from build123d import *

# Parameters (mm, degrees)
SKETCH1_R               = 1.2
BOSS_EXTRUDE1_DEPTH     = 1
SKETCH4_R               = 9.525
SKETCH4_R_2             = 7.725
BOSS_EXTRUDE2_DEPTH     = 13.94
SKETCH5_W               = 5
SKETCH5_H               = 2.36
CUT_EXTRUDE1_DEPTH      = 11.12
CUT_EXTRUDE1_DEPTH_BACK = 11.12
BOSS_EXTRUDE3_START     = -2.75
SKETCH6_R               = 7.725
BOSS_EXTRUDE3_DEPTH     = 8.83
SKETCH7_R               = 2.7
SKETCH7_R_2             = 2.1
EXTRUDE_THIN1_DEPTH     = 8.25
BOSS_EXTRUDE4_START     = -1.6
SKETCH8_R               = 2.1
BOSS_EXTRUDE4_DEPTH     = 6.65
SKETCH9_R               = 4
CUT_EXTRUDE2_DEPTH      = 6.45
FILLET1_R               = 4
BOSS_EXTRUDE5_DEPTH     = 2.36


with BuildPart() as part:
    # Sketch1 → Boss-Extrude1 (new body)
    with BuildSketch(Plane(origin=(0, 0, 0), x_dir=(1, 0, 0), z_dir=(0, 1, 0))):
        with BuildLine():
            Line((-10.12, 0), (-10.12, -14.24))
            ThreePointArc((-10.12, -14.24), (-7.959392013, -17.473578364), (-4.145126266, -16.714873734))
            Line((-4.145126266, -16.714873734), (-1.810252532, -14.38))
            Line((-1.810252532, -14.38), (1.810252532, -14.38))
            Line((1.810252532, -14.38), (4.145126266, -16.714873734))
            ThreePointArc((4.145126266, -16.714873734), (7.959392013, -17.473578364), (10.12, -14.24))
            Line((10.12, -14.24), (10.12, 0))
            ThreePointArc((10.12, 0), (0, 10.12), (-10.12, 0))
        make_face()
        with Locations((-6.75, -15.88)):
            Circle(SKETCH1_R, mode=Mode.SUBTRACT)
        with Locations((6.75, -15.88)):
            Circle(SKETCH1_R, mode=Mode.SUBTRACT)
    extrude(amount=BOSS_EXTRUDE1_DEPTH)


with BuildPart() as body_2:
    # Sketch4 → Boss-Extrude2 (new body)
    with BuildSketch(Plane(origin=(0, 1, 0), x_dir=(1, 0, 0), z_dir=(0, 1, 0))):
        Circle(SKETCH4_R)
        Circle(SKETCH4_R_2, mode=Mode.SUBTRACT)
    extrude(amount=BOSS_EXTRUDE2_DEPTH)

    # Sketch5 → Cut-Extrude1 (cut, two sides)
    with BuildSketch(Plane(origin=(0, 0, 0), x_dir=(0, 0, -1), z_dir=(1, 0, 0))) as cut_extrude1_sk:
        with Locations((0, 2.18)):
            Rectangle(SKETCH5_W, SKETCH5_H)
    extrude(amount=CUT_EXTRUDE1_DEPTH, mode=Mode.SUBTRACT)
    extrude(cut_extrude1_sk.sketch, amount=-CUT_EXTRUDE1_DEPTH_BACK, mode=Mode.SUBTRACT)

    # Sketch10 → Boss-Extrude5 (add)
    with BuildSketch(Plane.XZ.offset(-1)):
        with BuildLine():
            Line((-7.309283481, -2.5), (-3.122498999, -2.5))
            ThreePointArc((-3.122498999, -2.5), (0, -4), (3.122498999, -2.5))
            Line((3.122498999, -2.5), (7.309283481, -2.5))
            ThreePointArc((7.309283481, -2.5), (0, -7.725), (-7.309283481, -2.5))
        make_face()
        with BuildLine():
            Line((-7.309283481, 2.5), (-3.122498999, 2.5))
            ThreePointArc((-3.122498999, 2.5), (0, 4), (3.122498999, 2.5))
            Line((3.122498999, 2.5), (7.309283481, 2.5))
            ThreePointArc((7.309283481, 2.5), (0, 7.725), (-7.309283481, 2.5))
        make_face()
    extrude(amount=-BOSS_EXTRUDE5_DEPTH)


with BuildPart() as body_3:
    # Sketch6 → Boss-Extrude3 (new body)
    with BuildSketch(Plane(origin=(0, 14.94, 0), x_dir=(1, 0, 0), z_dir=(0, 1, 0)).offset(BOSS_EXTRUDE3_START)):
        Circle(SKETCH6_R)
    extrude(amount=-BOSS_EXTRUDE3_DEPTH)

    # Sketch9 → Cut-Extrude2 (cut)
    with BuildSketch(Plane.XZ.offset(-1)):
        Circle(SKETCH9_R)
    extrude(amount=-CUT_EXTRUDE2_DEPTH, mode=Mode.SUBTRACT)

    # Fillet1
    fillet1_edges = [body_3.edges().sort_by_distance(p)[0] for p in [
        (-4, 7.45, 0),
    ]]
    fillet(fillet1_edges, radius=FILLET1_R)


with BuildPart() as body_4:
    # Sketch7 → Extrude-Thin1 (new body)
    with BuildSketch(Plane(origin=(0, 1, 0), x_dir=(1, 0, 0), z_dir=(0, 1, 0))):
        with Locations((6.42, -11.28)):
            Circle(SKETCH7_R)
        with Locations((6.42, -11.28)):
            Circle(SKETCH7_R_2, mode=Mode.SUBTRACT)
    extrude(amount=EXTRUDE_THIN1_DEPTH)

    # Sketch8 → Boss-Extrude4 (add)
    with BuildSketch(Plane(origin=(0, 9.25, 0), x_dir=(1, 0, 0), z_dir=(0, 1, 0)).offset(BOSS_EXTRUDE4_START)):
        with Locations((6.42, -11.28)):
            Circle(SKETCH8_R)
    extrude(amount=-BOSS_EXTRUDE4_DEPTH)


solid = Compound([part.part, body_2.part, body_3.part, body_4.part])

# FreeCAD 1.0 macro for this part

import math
import FreeCAD as App
import Part
import Sketcher


def edges_at(feature, points):
    """Names of the edges that pass closest to the given points."""
    edges = feature.Shape.Edges
    near = lambda p: min(range(len(edges)), key=lambda i: edges[i].distToShape(Part.Vertex(*p))[0])
    return sorted({f"Edge{near(p) + 1}" for p in points})

doc = App.newDocument("Part")
body = doc.addObject("PartDesign::Body", "Body")

# Sketch on XZ plane
sketch1 = body.newObject("Sketcher::SketchObject", "Sketch")
sketch1.AttachmentSupport = (doc.getObject("XZ_Plane"), [""])
sketch1.MapMode = "FlatFace"
sketch1.addGeometry([
    Part.LineSegment(App.Vector(-10.1, 0, 0), App.Vector(-10.1, 14.2, 0)),  # 0
    Part.ArcOfCircle(Part.Circle(App.Vector(-6.6, 14.2, 0), App.Vector(0, 0, 1), 3.5), math.radians(45), math.radians(180)),  # 1
    Part.LineSegment(App.Vector(-4.1, 16.7, 0), App.Vector(-1.8, 14.4, 0)),  # 2
    Part.LineSegment(App.Vector(-1.8, 14.4, 0), App.Vector(1.8, 14.4, 0)),  # 3
    Part.LineSegment(App.Vector(1.8, 14.4, 0), App.Vector(4.1, 16.7, 0)),  # 4
    Part.ArcOfCircle(Part.Circle(App.Vector(6.6, 14.2, 0), App.Vector(0, 0, 1), 3.5), math.radians(0), math.radians(135)),  # 5
    Part.LineSegment(App.Vector(10.1, 14.2, 0), App.Vector(10.1, 0, 0)),  # 6
    Part.ArcOfCircle(Part.Circle(App.Vector(0, 0, 0), App.Vector(0, 0, 1), 10.1), math.radians(180), math.radians(360)),  # 7
    Part.Circle(App.Vector(-6.8, 15.9, 0), App.Vector(0, 0, 1), 1.2),  # 8
    Part.Circle(App.Vector(6.8, 15.9, 0), App.Vector(0, 0, 1), 1.2),  # 9
], False)
sketch1.addConstraint([
    Sketcher.Constraint("Tangent", 0, 2, 1, 2),
    Sketcher.Constraint("Tangent", 1, 1, 2, 1),
    Sketcher.Constraint("Coincident", 2, 2, 3, 1),
    Sketcher.Constraint("Coincident", 3, 2, 4, 1),
    Sketcher.Constraint("Tangent", 4, 2, 5, 2),
    Sketcher.Constraint("Tangent", 5, 1, 6, 1),
    Sketcher.Constraint("Tangent", 6, 2, 7, 2),
    Sketcher.Constraint("Tangent", 7, 1, 0, 1),
    Sketcher.Constraint("Vertical", 0),
    Sketcher.Constraint("Horizontal", 3),
    Sketcher.Constraint("Vertical", 6),
    Sketcher.Constraint("Coincident", 7, 3, -1, 1),
    Sketcher.Constraint("Equal", 1, 5),
    Sketcher.Constraint("Equal", 8, 9),
    Sketcher.Constraint("Symmetric", 8, 3, 9, 3, -2),
    Sketcher.Constraint("Symmetric", 1, 1, 4, 2, -2),
    Sketcher.Constraint("Perpendicular", 2, 4),
    Sketcher.Constraint("Diameter", 8, 2.4),
    Sketcher.Constraint("Radius", 1, 3.5),
    Sketcher.Constraint("Radius", 7, 10.12),
    Sketcher.Constraint("DistanceY", 0, 1, 0, 2, 14.24),
    Sketcher.Constraint("DistanceX", 8, 3, 9, 3, 13.5),
    Sketcher.Constraint("DistanceY", 2, 2, 8, 3, 1.5),
    Sketcher.Constraint("DistanceY", -1, 1, 8, 3, 15.88),
])
pad1 = body.newObject("PartDesign::Pad", "Pad")
pad1.Profile = sketch1
pad1.Length = 1
pad1.Reversed = True
body2 = doc.addObject("PartDesign::Body", "Body001")

# Sketch on XZ plane
sketch2 = body2.newObject("Sketcher::SketchObject", "Sketch001")
sketch2.AttachmentSupport = (doc.getObject("XZ_Plane001"), [""])
sketch2.MapMode = "FlatFace"
sketch2.AttachmentOffset = App.Placement(App.Vector(0, 0, -1), App.Rotation())
sketch2.addGeometry([
    Part.Circle(App.Vector(0, 0, 0), App.Vector(0, 0, 1), 10),
    Part.Circle(App.Vector(0, 0, 0), App.Vector(0, 0, 1), 8),
], False)
sketch2.addConstraint([
    Sketcher.Constraint("Coincident", 0, 3, -1, 1),
    Sketcher.Constraint("Coincident", 1, 3, -1, 1),
    Sketcher.Constraint("Diameter", 0, 19.05),
    Sketcher.Constraint("Diameter", 1, 15.45),
])
pad2 = body2.newObject("PartDesign::Pad", "Pad001")
pad2.Profile = sketch2
pad2.Length = 13.94
pad2.Reversed = True

# Sketch on YZ plane
sketch3 = body2.newObject("Sketcher::SketchObject", "Sketch002")
sketch3.AttachmentSupport = (doc.getObject("YZ_Plane001"), [""])
sketch3.MapMode = "FlatFace"
sketch3.addGeometry([
    Part.LineSegment(App.Vector(3.4, 2.5, 0), App.Vector(1, 2.5, 0)),
    Part.LineSegment(App.Vector(1, 2.5, 0), App.Vector(1, -2.5, 0)),
    Part.LineSegment(App.Vector(1, -2.5, 0), App.Vector(3.4, -2.5, 0)),
    Part.LineSegment(App.Vector(3.4, -2.5, 0), App.Vector(3.4, 2.5, 0)),
], False)
sketch3.addConstraint([
    Sketcher.Constraint("Coincident", 0, 2, 1, 1),
    Sketcher.Constraint("Coincident", 1, 2, 2, 1),
    Sketcher.Constraint("Coincident", 2, 2, 3, 1),
    Sketcher.Constraint("Coincident", 3, 2, 0, 1),
    Sketcher.Constraint("Horizontal", 0),
    Sketcher.Constraint("Vertical", 1),
    Sketcher.Constraint("Horizontal", 2),
    Sketcher.Constraint("Vertical", 3),
    Sketcher.Constraint("DistanceY", 1, 2, 1, 1, 5.0),
    Sketcher.Constraint("DistanceX", -1, 1, 0, 2, 1.0),
    Sketcher.Constraint("DistanceX", 0, 2, 0, 1, 2.36),
    Sketcher.Constraint("DistanceY", -1, 1, 0, 2, 2.5),
])
pocket1 = body2.newObject("PartDesign::Pocket", "Pocket")
pocket1.Profile = sketch3
pocket1.Type = "ThroughAll"
pocket1.Midplane = True

# Sketch on XZ plane
sketch4 = body2.newObject("Sketcher::SketchObject", "Sketch003")
sketch4.AttachmentSupport = (doc.getObject("XZ_Plane001"), [""])
sketch4.MapMode = "FlatFace"
sketch4.AttachmentOffset = App.Placement(App.Vector(0, 0, -1), App.Rotation())
sketch4.addGeometry([
    Part.LineSegment(App.Vector(-3.1, -2.5, 0), App.Vector(-7.3, -2.5, 0)),  # 0
    Part.ArcOfCircle(Part.Circle(App.Vector(0, 0, 0), App.Vector(0, 0, 1), 7.7), math.radians(-161), math.radians(-19)),  # 1
    Part.LineSegment(App.Vector(7.3, -2.5, 0), App.Vector(3.1, -2.5, 0)),  # 2
    Part.ArcOfCircle(Part.Circle(App.Vector(0, 0, 0), App.Vector(0, 0, 1), 4), math.radians(-141), math.radians(-39)),  # 3
    Part.LineSegment(App.Vector(-7.3, 2.5, 0), App.Vector(-3.1, 2.5, 0)),  # 4
    Part.ArcOfCircle(Part.Circle(App.Vector(0, 0, 0), App.Vector(0, 0, 1), 4), math.radians(39), math.radians(141)),  # 5
    Part.LineSegment(App.Vector(3.1, 2.5, 0), App.Vector(7.3, 2.5, 0)),  # 6
    Part.ArcOfCircle(Part.Circle(App.Vector(0, 0, 0), App.Vector(0, 0, 1), 7.7), math.radians(19), math.radians(161)),  # 7
], False)
sketch4.addConstraint([
    Sketcher.Constraint("Coincident", 0, 2, 1, 1),
    Sketcher.Constraint("Coincident", 1, 2, 2, 1),
    Sketcher.Constraint("Coincident", 2, 2, 3, 2),
    Sketcher.Constraint("Coincident", 3, 1, 0, 1),
    Sketcher.Constraint("Coincident", 4, 2, 5, 2),
    Sketcher.Constraint("Coincident", 5, 1, 6, 1),
    Sketcher.Constraint("Coincident", 6, 2, 7, 1),
    Sketcher.Constraint("Coincident", 7, 2, 4, 1),
    Sketcher.Constraint("Horizontal", 0),
    Sketcher.Constraint("Horizontal", 2),
    Sketcher.Constraint("Horizontal", 4),
    Sketcher.Constraint("Horizontal", 6),
    Sketcher.Constraint("Coincident", 1, 3, -1, 1),
    Sketcher.Constraint("Coincident", 3, 3, -1, 1),
    Sketcher.Constraint("Coincident", 5, 3, -1, 1),
    Sketcher.Constraint("Coincident", 7, 3, -1, 1),
    Sketcher.Constraint("Equal", 3, 5),
    Sketcher.Constraint("Equal", 1, 7),
    Sketcher.Constraint("Horizontal", 0, 2, 1, 2),
    Sketcher.Constraint("Horizontal", 4, 2, 5, 1),
    Sketcher.Constraint("Vertical", 3, 1, 4, 2),
    Sketcher.Constraint("Radius", 3, 4.0),
    Sketcher.Constraint("Radius", 1, 7.725),
    Sketcher.Constraint("DistanceY", 3, 1, 4, 2, 5.0),
])
pad3 = body2.newObject("PartDesign::Pad", "Pad002")
pad3.Profile = sketch4
pad3.Length = 2.36
pad3.Reversed = True
body3 = doc.addObject("PartDesign::Body", "Body002")

# Sketch on XZ plane
sketch5 = body3.newObject("Sketcher::SketchObject", "Sketch004")
sketch5.AttachmentSupport = (doc.getObject("XZ_Plane002"), [""])
sketch5.MapMode = "FlatFace"
sketch5.AttachmentOffset = App.Placement(App.Vector(0, 0, -12.19), App.Rotation())
sketch5.addGeometry(Part.Circle(App.Vector(0, 0, 0), App.Vector(0, 0, 1), 8), False)
sketch5.addConstraint([
    Sketcher.Constraint("Coincident", 0, 3, -1, 1),
    Sketcher.Constraint("Diameter", 0, 15.45),
])
pad4 = body3.newObject("PartDesign::Pad", "Pad003")
pad4.Profile = sketch5
pad4.Length = 8.83

# Sketch on XZ plane
sketch6 = body3.newObject("Sketcher::SketchObject", "Sketch005")
sketch6.AttachmentSupport = (doc.getObject("XZ_Plane002"), [""])
sketch6.MapMode = "FlatFace"
sketch6.AttachmentOffset = App.Placement(App.Vector(0, 0, -1), App.Rotation())
sketch6.addGeometry(Part.Circle(App.Vector(0, 0, 0), App.Vector(0, 0, 1), 4), False)
sketch6.addConstraint([
    Sketcher.Constraint("Coincident", 0, 3, -1, 1),
    Sketcher.Constraint("Diameter", 0, 8.0),
])
pocket2 = body3.newObject("PartDesign::Pocket", "Pocket001")
pocket2.Profile = sketch6
pocket2.Length = 6.45
doc.recompute()

fillet = body3.newObject("PartDesign::Fillet", "Fillet")
fillet.Base = (pocket2, edges_at(pocket2, [(-4, 7.45, 0)]))
fillet.Radius = 4
body4 = doc.addObject("PartDesign::Body", "Body003")

# Sketch on XZ plane
sketch7 = body4.newObject("Sketcher::SketchObject", "Sketch006")
sketch7.AttachmentSupport = (doc.getObject("XZ_Plane003"), [""])
sketch7.MapMode = "FlatFace"
sketch7.AttachmentOffset = App.Placement(App.Vector(0, 0, -1), App.Rotation())
sketch7.addGeometry([
    Part.Circle(App.Vector(6.4, 11.3, 0), App.Vector(0, 0, 1), 2.7),
    Part.Circle(App.Vector(6.4, 11.3, 0), App.Vector(0, 0, 1), 2.1),
], False)
sketch7.addConstraint([
    Sketcher.Constraint("Coincident", 1, 3, 0, 3),
    Sketcher.Constraint("Diameter", 0, 5.4),
    Sketcher.Constraint("Diameter", 1, 4.2),
    Sketcher.Constraint("DistanceX", -1, 1, 0, 3, 6.42),
    Sketcher.Constraint("DistanceY", -1, 1, 0, 3, 11.28),
])
pad5 = body4.newObject("PartDesign::Pad", "Pad004")
pad5.Profile = sketch7
pad5.Length = 8.25
pad5.Reversed = True

# Sketch on XZ plane
sketch8 = body4.newObject("Sketcher::SketchObject", "Sketch007")
sketch8.AttachmentSupport = (doc.getObject("XZ_Plane003"), [""])
sketch8.MapMode = "FlatFace"
sketch8.AttachmentOffset = App.Placement(App.Vector(0, 0, -7.65), App.Rotation())
sketch8.addGeometry(Part.Circle(App.Vector(6.4, 11.3, 0), App.Vector(0, 0, 1), 2.1), False)
sketch8.addConstraint([
    Sketcher.Constraint("Diameter", 0, 4.2),
    Sketcher.Constraint("DistanceX", -1, 1, 0, 3, 6.42),
    Sketcher.Constraint("DistanceY", -1, 1, 0, 3, 11.28),
])
pad6 = body4.newObject("PartDesign::Pad", "Pad005")
pad6.Profile = sketch8
pad6.Length = 6.65

doc.recompute()
